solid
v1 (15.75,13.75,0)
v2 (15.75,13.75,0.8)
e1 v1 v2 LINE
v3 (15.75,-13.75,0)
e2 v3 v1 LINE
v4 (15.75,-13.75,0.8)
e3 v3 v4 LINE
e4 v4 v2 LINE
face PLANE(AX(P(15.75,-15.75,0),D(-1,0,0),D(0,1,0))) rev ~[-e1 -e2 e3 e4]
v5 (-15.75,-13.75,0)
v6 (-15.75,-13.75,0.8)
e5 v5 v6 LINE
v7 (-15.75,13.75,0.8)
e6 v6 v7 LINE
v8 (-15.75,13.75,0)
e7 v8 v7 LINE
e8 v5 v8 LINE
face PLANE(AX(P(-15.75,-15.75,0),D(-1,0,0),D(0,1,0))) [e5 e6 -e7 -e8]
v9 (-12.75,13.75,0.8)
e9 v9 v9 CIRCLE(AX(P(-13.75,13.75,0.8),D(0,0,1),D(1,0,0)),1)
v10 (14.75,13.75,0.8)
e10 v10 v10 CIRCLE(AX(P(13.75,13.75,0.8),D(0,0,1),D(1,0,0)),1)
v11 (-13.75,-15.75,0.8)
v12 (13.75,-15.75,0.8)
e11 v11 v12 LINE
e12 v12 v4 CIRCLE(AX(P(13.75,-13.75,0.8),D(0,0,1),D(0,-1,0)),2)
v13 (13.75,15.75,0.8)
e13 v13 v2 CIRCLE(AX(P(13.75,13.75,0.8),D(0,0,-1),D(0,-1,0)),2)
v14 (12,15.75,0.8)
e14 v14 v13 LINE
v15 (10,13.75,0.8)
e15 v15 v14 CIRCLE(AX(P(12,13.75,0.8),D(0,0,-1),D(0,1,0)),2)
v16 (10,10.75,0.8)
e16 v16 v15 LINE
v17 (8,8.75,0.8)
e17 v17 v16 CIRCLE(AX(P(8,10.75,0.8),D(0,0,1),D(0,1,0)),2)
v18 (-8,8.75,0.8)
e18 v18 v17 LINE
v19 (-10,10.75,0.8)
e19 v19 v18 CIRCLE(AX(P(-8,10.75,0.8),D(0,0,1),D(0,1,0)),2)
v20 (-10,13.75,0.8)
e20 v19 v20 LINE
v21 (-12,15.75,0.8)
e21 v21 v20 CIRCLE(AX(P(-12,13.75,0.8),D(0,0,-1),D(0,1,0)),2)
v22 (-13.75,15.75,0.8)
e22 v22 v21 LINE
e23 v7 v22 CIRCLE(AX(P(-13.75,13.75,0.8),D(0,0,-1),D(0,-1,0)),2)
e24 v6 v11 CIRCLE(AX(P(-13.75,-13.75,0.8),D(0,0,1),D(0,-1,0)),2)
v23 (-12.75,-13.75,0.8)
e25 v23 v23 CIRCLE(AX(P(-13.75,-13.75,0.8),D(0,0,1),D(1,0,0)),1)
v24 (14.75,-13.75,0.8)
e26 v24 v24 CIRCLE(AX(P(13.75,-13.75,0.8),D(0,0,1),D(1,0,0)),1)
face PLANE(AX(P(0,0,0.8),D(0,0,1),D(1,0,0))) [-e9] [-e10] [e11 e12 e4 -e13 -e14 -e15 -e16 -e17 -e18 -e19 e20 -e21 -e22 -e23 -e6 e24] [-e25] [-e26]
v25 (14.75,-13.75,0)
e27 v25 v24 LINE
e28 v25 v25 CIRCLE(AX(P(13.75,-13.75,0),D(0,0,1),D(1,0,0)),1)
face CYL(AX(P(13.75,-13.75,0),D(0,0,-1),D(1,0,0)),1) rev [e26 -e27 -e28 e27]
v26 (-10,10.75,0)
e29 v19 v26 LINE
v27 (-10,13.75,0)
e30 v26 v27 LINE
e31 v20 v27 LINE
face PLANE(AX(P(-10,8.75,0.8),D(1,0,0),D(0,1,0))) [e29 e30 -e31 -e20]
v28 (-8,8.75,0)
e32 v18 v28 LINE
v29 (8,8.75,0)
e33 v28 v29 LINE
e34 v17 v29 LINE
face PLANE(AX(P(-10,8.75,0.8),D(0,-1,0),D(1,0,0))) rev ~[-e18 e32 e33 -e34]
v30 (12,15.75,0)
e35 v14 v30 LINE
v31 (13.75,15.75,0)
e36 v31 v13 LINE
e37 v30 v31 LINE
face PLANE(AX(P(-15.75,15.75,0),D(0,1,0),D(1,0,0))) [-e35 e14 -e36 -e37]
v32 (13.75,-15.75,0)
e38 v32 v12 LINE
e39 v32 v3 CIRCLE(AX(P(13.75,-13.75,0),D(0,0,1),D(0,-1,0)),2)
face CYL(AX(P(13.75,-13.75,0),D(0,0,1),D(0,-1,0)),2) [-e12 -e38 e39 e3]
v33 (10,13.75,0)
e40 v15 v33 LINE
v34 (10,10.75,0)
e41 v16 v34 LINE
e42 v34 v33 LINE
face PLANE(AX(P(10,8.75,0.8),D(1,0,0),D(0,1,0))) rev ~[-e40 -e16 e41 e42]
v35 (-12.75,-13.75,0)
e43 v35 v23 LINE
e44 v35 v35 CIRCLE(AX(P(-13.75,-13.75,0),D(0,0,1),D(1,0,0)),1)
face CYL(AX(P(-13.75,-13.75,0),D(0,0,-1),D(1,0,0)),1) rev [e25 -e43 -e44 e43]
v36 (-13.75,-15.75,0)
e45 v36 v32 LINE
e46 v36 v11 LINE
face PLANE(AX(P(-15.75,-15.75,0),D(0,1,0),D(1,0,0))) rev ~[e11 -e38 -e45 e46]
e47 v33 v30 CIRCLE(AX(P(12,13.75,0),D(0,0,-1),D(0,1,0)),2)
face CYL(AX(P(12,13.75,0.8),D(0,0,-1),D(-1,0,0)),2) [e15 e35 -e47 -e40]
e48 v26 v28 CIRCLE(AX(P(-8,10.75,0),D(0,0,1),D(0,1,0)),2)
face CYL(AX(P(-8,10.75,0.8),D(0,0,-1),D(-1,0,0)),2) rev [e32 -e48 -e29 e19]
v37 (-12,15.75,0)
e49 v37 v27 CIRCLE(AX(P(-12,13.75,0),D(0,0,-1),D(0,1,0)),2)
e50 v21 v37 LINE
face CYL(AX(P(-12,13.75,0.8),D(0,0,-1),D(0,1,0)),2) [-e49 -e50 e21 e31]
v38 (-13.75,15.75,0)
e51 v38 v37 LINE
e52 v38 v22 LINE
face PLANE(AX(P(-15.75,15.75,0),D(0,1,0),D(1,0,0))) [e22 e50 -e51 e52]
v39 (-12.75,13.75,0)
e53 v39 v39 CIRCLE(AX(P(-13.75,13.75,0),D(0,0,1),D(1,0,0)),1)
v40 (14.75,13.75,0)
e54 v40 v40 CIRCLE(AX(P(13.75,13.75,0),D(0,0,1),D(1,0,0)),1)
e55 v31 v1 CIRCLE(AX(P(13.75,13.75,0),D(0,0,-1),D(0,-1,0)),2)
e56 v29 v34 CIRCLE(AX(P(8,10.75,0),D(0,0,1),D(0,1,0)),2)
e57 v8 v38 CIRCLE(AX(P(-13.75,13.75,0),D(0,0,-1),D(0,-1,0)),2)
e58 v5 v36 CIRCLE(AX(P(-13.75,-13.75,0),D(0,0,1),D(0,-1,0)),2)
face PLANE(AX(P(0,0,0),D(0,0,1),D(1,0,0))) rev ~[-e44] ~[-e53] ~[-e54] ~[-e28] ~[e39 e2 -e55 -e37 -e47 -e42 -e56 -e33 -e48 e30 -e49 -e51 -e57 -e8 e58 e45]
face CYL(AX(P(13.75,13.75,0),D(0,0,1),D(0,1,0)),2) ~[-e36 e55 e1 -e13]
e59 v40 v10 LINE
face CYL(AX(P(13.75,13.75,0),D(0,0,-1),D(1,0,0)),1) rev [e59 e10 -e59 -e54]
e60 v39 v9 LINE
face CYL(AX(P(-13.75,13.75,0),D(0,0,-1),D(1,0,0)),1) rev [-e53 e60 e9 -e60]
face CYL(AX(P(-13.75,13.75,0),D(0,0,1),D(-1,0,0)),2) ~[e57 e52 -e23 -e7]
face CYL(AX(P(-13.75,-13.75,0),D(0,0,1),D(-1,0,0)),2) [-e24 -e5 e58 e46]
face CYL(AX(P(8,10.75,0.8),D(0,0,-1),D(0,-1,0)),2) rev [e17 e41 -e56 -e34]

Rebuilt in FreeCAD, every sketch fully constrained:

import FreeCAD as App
import Part
import Sketcher
from FreeCAD import Vector


def edges_at(feature, points):
    """Names of the edges that pass closest to the given points."""
    edges = feature.Shape.Edges
    near = lambda p: min(range(len(edges)), key=lambda i: edges[i].distToShape(Part.Vertex(*p))[0])
    return sorted({f"Edge{near(p) + 1}" for p in points})

doc = App.newDocument("Part")
params = doc.addObject("Spreadsheet::Sheet", "Params")
for row, (alias, value) in enumerate([
    ("sketch1_diameter", "2 mm"),
    ("sketch1_width", "31.5 mm"),
    ("pad1_length", "0.8 mm"),
    ("fillet_radius", "2 mm"),
    ("sketch2_width", "20 mm"),
    ("sketch2_height", "7 mm"),
    ("fillet2_radius", "2 mm"),
], start=1):
    params.set(f"A{row}", alias)
    params.set(f"B{row}", "=" + value)
    params.setAlias(f"B{row}", alias)

body = doc.addObject("PartDesign::Body", "Body")

sketch1 = doc.addObject("Sketcher::SketchObject", "Sketch")
body.addObject(sketch1)
sketch1.AttachmentSupport = (doc.XY_Plane, [""])
sketch1.MapMode = "FlatFace"
sketch1.addGeometry(Part.LineSegment(Vector(-15.8, 15.8, 0), Vector(-15.8, -15.8, 0)), False)
sketch1.addGeometry(Part.LineSegment(Vector(-15.8, -15.8, 0), Vector(15.8, -15.8, 0)), False)
sketch1.addGeometry(Part.LineSegment(Vector(15.8, -15.8, 0), Vector(15.8, 15.8, 0)), False)
sketch1.addGeometry(Part.LineSegment(Vector(15.8, 15.8, 0), Vector(-15.8, 15.8, 0)), False)
sketch1.addGeometry(Part.Circle(Vector(-13.8, -13.8, 0), Vector(0, 0, 1), 1), False)
sketch1.addGeometry(Part.Circle(Vector(13.8, -13.8, 0), Vector(0, 0, 1), 1), False)
sketch1.addGeometry(Part.Circle(Vector(-13.8, 13.8, 0), Vector(0, 0, 1), 1), False)
sketch1.addGeometry(Part.Circle(Vector(13.8, 13.8, 0), Vector(0, 0, 1), 1), False)
sketch1.addConstraint(Sketcher.Constraint("Coincident", 0, 2, 1, 1))
sketch1.addConstraint(Sketcher.Constraint("Coincident", 1, 2, 2, 1))
sketch1.addConstraint(Sketcher.Constraint("Coincident", 2, 2, 3, 1))
sketch1.addConstraint(Sketcher.Constraint("Coincident", 3, 2, 0, 1))
sketch1.addConstraint(Sketcher.Constraint("Vertical", 0))
sketch1.addConstraint(Sketcher.Constraint("Horizontal", 1))
sketch1.addConstraint(Sketcher.Constraint("Vertical", 2))
sketch1.addConstraint(Sketcher.Constraint("Horizontal", 3))
sketch1.addConstraint(Sketcher.Constraint("Equal", 4, 5))
sketch1.addConstraint(Sketcher.Constraint("Equal", 5, 6))
sketch1.addConstraint(Sketcher.Constraint("Equal", 6, 7))
sketch1.addConstraint(Sketcher.Constraint("Symmetric", 5, 3, 6, 3, -1, 1))
sketch1.addConstraint(Sketcher.Constraint("Symmetric", 4, 3, 7, 3, -1, 1))
sketch1.addConstraint(Sketcher.Constraint("Symmetric", 0, 2, 2, 2, -1, 1))
sketch1.addConstraint(Sketcher.Constraint("Symmetric", 4, 3, 5, 3, -2))
sketch1.addConstraint(Sketcher.Constraint("Equal", 3, 0))
sketch1.addConstraint(Sketcher.Constraint("Diameter", 4, 2.0))
sketch1.addConstraint(Sketcher.Constraint("DistanceX", 1, 1, 1, 2, 31.5))
sketch1.addConstraint(Sketcher.Constraint("DistanceX", 0, 2, 4, 3, 2.0))
sketch1.addConstraint(Sketcher.Constraint("DistanceY", 0, 2, 4, 3, 2.0))
sketch1.setExpression("Constraints[16]", "Params.sketch1_diameter")
sketch1.setExpression("Constraints[17]", "Params.sketch1_width")
pad1 = doc.addObject("PartDesign::Pad", "Pad")
body.addObject(pad1)
pad1.Profile = sketch1
pad1.setExpression("Length", "Params.pad1_length")
doc.recompute()

fillet = doc.addObject("PartDesign::Fillet", "Fillet")
body.addObject(fillet)
fillet.Base = (pad1, edges_at(pad1, [
    (-15.75, 15.75, 0.4),
    (-15.75, -15.75, 0.4),
    (15.75, -15.75, 0.4),
    (15.75, 15.75, 0.4),
]))
fillet.setExpression("Radius", "Params.fillet_radius")

sketch2 = doc.addObject("Sketcher::SketchObject", "Sketch001")
body.addObject(sketch2)
sketch2.AttachmentSupport = (doc.XY_Plane, [""])
sketch2.MapMode = "FlatFace"
sketch2.AttachmentOffset = App.Placement(Vector(0, 0, 0.8), App.Rotation())
sketch2.addGeometry(Part.LineSegment(Vector(-10, 16, 0), Vector(-10, 9, 0)), False)
sketch2.addGeometry(Part.LineSegment(Vector(-10, 9, 0), Vector(10, 9, 0)), False)
sketch2.addGeometry(Part.LineSegment(Vector(10, 9, 0), Vector(10, 16, 0)), False)
sketch2.addGeometry(Part.LineSegment(Vector(10, 16, 0), Vector(-10, 16, 0)), False)
sketch2.addConstraint(Sketcher.Constraint("Coincident", 0, 2, 1, 1))
sketch2.addConstraint(Sketcher.Constraint("Coincident", 1, 2, 2, 1))
sketch2.addConstraint(Sketcher.Constraint("Coincident", 2, 2, 3, 1))
sketch2.addConstraint(Sketcher.Constraint("Coincident", 3, 2, 0, 1))
sketch2.addConstraint(Sketcher.Constraint("Vertical", 0))
sketch2.addConstraint(Sketcher.Constraint("Horizontal", 1))
sketch2.addConstraint(Sketcher.Constraint("Vertical", 2))
sketch2.addConstraint(Sketcher.Constraint("Horizontal", 3))
sketch2.addConstraint(Sketcher.Constraint("DistanceX", 1, 1, 1, 2, 20.0))
sketch2.addConstraint(Sketcher.Constraint("DistanceY", 0, 2, 0, 1, 7.0))
sketch2.addConstraint(Sketcher.Constraint("DistanceX", 0, 2, -1, 1, 10.0))
sketch2.addConstraint(Sketcher.Constraint("DistanceY", -1, 1, 0, 2, 8.75))
sketch2.setExpression("Constraints[8]", "Params.sketch2_width")
sketch2.setExpression("Constraints[9]", "Params.sketch2_height")
pocket1 = doc.addObject("PartDesign::Pocket", "Pocket")
body.addObject(pocket1)
pocket1.Profile = sketch2
pocket1.Type = "ThroughAll"
doc.recompute()

fillet2 = doc.addObject("PartDesign::Fillet", "Fillet001")
body.addObject(fillet2)
fillet2.Base = (pocket1, edges_at(pocket1, [
    (-10, 15.75, 0.4),
    (-10, 8.75, 0.4),
    (10, 8.75, 0.4),
    (10, 15.75, 0.4),
]))
fillet2.setExpression("Radius", "Params.fillet2_radius")

doc.recompute()
